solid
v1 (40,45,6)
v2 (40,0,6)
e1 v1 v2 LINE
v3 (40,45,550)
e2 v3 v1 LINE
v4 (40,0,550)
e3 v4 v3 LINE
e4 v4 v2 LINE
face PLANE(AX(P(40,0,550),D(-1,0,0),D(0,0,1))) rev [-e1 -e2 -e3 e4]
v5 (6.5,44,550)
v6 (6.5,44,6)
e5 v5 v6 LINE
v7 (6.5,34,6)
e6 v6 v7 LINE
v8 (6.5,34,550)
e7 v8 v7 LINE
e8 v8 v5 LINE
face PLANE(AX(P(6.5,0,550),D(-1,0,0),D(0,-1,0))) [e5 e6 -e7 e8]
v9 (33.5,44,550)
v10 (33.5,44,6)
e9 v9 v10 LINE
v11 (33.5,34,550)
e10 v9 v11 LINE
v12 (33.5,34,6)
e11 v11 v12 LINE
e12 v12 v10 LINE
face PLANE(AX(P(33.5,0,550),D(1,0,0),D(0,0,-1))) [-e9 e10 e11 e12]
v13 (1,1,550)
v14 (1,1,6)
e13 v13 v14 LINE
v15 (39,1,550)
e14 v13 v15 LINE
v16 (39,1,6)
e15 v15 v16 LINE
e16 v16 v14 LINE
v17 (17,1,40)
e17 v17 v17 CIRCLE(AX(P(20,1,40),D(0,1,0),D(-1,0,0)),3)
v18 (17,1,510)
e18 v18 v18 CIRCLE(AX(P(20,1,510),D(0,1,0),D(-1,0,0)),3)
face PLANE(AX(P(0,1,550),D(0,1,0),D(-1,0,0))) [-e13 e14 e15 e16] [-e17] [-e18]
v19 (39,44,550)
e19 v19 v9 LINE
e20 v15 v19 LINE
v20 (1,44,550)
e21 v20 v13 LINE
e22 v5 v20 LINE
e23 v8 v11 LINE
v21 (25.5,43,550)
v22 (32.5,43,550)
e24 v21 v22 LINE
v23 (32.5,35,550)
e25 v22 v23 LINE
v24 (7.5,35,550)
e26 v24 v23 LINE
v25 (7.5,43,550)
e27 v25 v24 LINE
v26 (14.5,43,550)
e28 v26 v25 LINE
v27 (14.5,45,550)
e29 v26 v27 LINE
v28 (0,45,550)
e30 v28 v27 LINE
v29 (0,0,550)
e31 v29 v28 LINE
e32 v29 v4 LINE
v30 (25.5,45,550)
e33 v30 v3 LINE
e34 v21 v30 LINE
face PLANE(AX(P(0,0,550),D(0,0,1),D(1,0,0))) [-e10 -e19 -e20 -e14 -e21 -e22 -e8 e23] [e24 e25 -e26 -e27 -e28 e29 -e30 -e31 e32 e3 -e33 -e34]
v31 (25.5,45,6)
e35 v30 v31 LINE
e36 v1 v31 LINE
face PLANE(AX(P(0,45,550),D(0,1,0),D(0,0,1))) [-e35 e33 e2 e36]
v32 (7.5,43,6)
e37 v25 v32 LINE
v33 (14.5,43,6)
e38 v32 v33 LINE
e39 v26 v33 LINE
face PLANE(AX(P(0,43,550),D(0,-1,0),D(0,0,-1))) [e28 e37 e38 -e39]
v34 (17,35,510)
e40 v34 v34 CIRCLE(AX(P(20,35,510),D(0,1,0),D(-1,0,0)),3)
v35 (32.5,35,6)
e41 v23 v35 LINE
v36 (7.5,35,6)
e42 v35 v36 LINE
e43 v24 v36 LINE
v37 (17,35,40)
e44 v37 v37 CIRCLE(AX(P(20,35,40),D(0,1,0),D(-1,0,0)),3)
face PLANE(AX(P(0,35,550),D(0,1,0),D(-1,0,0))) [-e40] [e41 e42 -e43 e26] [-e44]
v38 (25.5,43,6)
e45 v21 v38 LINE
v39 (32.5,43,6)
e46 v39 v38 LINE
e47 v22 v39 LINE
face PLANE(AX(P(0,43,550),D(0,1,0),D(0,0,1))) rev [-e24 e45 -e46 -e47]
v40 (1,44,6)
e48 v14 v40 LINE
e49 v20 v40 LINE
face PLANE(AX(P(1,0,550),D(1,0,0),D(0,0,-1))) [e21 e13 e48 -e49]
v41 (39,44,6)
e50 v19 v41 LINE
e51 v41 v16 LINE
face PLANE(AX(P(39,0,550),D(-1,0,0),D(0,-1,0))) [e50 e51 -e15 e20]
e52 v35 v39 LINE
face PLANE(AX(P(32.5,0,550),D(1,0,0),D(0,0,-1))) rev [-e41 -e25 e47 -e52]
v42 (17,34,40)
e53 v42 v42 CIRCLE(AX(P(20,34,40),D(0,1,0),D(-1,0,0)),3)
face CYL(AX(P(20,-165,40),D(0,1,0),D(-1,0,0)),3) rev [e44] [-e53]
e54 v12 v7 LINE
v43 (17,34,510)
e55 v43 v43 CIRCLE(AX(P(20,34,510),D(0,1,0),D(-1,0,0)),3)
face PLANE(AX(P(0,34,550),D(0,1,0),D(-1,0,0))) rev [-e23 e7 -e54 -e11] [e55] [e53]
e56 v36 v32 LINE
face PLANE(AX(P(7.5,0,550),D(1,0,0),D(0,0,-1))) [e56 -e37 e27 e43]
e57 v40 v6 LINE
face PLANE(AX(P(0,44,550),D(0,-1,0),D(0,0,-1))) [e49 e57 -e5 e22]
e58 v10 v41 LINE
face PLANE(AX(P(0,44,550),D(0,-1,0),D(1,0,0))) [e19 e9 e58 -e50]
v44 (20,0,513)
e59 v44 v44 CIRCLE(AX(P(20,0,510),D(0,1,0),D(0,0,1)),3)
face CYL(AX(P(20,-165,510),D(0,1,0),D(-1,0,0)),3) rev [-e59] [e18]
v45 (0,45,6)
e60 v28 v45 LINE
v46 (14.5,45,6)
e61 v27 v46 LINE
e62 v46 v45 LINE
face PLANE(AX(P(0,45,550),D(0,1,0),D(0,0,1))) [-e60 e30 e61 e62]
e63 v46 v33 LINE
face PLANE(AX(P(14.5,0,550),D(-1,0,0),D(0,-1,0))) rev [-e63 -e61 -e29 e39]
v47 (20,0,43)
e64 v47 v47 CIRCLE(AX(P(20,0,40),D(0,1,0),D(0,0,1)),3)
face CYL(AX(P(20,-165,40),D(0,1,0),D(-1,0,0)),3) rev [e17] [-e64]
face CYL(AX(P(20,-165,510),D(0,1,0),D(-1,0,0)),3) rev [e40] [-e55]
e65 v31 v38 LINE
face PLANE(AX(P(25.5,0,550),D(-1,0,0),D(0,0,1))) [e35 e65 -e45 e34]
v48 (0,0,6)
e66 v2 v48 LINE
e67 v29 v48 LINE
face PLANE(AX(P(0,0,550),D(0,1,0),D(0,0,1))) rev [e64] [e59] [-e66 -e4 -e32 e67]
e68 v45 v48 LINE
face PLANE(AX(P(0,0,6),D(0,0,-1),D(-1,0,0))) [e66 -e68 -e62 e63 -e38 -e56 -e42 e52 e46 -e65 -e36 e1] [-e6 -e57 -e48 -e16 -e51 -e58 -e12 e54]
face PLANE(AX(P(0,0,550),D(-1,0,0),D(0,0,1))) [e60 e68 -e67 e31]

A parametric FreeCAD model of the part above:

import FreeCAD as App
import Part
import Sketcher
from FreeCAD import Vector
Q = App.Units.Quantity


def add_polygon(sketch, points):
    """Adds a closed chain of lines whose ends are joined by coincident constraints."""
    first, n = sketch.GeometryCount, len(points)
    for a, b in zip(points, points[1:] + points[:1]):
        sketch.addGeometry(Part.LineSegment(App.Vector(*a, 0), App.Vector(*b, 0)), False)
    for i in range(n):
        sketch.addConstraint(Sketcher.Constraint("Coincident", first + i, 2, first + (i + 1) % n, 1))

doc = App.newDocument("Part")
params = doc.addObject("Spreadsheet::Sheet", "Params")
for row, (alias, value) in enumerate([
    ("sketch1_width", "7 mm"),
    ("sketch1_width2", "25 mm"),
    ("sketch1_width3", "40 mm"),
    ("sketch1_width4", "38 mm"),
    ("sketch1_width5", "27 mm"),
    ("pad1_length", "550 mm"),
    ("sketch2_diameter", "6 mm"),
    ("pocket1_length", "200 mm"),
    ("pocket2_length", "6 mm"),
], start=1):
    params.set(f"A{row}", alias)
    params.set(f"B{row}", "=" + value)
    params.setAlias(f"B{row}", alias)

body = doc.addObject("PartDesign::Body", "Body")

sketch1 = body.newObject("Sketcher::SketchObject", "Sketch")
sketch1.AttachmentSupport = (doc.getObject("XY_Plane"), [""])
sketch1.MapMode = "FlatFace"
add_polygon(sketch1, [(25.5, 45), (25.5, 43), (32.5, 43), (32.5, 35), (7.5, 35), (7.5, 43), (14.5, 43), (14.5, 45), (0, 45), (0, 0), (40, 0), (40, 45)])
add_polygon(sketch1, [(33.5, 44), (39, 44), (39, 1), (1, 1), (1, 44), (6.5, 44), (6.5, 34), (33.5, 34)])
sketch1.addConstraint(Sketcher.Constraint("Vertical", 0))
sketch1.addConstraint(Sketcher.Constraint("Horizontal", 1))
sketch1.addConstraint(Sketcher.Constraint("Vertical", 2))
sketch1.addConstraint(Sketcher.Constraint("Horizontal", 3))
sketch1.addConstraint(Sketcher.Constraint("Vertical", 4))
sketch1.addConstraint(Sketcher.Constraint("Horizontal", 5))
sketch1.addConstraint(Sketcher.Constraint("Vertical", 6))
sketch1.addConstraint(Sketcher.Constraint("Horizontal", 7))
sketch1.addConstraint(Sketcher.Constraint("Vertical", 8))
sketch1.addConstraint(Sketcher.Constraint("Horizontal", 9))
sketch1.addConstraint(Sketcher.Constraint("Vertical", 10))
sketch1.addConstraint(Sketcher.Constraint("Horizontal", 11))
sketch1.addConstraint(Sketcher.Constraint("Horizontal", 12))
sketch1.addConstraint(Sketcher.Constraint("Vertical", 13))
sketch1.addConstraint(Sketcher.Constraint("Horizontal", 14))
sketch1.addConstraint(Sketcher.Constraint("Vertical", 15))
sketch1.addConstraint(Sketcher.Constraint("Horizontal", 16))
sketch1.addConstraint(Sketcher.Constraint("Vertical", 17))
sketch1.addConstraint(Sketcher.Constraint("Horizontal", 18))
sketch1.addConstraint(Sketcher.Constraint("Vertical", 19))
sketch1.addConstraint(Sketcher.Constraint("Coincident", 8, 2, -1, 1))
sketch1.addConstraint(Sketcher.Constraint("Horizontal", 1, 2, 4, 2))
sketch1.addConstraint(Sketcher.Constraint("Horizontal", 7, 2, 10, 2))
sketch1.addConstraint(Sketcher.Constraint("Horizontal", 12, 2, 15, 2))
sketch1.addConstraint(Sketcher.Constraint("Equal", 1, 5))
sketch1.addConstraint(Sketcher.Constraint("Equal", 7, 11))
sketch1.addConstraint(Sketcher.Constraint("Equal", 12, 16))
sketch1.addConstraint(Sketcher.Constraint("DistanceX", 1, 1, 1, 2, Q("7 mm")))
sketch1.addConstraint(Sketcher.Constraint("DistanceX", 3, 2, 3, 1, Q("25 mm")))
sketch1.addConstraint(Sketcher.Constraint("DistanceX", 9, 1, 9, 2, Q("40 mm")))
sketch1.addConstraint(Sketcher.Constraint("DistanceX", 14, 2, 14, 1, Q("38 mm")))
sketch1.addConstraint(Sketcher.Constraint("DistanceX", 18, 1, 18, 2, Q("27 mm")))
sketch1.addConstraint(Sketcher.Constraint("DistanceY", 0, 2, 0, 1, Q("2 mm")))
sketch1.addConstraint(Sketcher.Constraint("DistanceY", 2, 2, 2, 1, Q("8 mm")))
sketch1.addConstraint(Sketcher.Constraint("DistanceY", 8, 2, 8, 1, Q("45 mm")))
sketch1.addConstraint(Sketcher.Constraint("DistanceY", 13, 2, 13, 1, Q("43 mm")))
sketch1.addConstraint(Sketcher.Constraint("DistanceY", 17, 2, 17, 1, Q("10 mm")))
sketch1.addConstraint(Sketcher.Constraint("DistanceX", -1, 1, 12, 2, Q("39 mm")))
sketch1.addConstraint(Sketcher.Constraint("DistanceY", -1, 1, 12, 2, Q("44 mm")))
sketch1.setExpression("Constraints[47]", "Params.sketch1_width")
sketch1.setExpression("Constraints[48]", "Params.sketch1_width2")
sketch1.setExpression("Constraints[49]", "Params.sketch1_width3")
sketch1.setExpression("Constraints[50]", "Params.sketch1_width4")
sketch1.setExpression("Constraints[51]", "Params.sketch1_width5")
pad1 = body.newObject("PartDesign::Pad", "Pad")
pad1.Profile = sketch1
pad1.setExpression("Length", "Params.pad1_length")

sketch2 = body.newObject("Sketcher::SketchObject", "Sketch001")
sketch2.AttachmentSupport = (doc.getObject("XZ_Plane"), [""])
sketch2.MapMode = "FlatFace"
sketch2.AttachmentOffset = App.Placement(Vector(0, 0, -35), App.Rotation())
sketch2.addGeometry(Part.Circle(Vector(20, 40, 0), Vector(0, 0, 1), 3), False)
sketch2.addGeometry(Part.Circle(Vector(20, 510, 0), Vector(0, 0, 1), 3), False)
sketch2.addConstraint(Sketcher.Constraint("Equal", 0, 1))
sketch2.addConstraint(Sketcher.Constraint("Vertical", 0, 3, 1, 3))
sketch2.addConstraint(Sketcher.Constraint("Diameter", 0, Q("6 mm")))
sketch2.addConstraint(Sketcher.Constraint("DistanceX", -1, 1, 0, 3, Q("20 mm")))
sketch2.addConstraint(Sketcher.Constraint("DistanceY", -1, 1, 0, 3, Q("40 mm")))
sketch2.addConstraint(Sketcher.Constraint("DistanceY", -1, 1, 1, 3, Q("510 mm")))
sketch2.setExpression("Constraints[2]", "Params.sketch2_diameter")
pocket1 = body.newObject("PartDesign::Pocket", "Pocket")
pocket1.Profile = sketch2
pocket1.setExpression("Length", "Params.pocket1_length")
pocket1.Reversed = True

sketch3 = body.newObject("Sketcher::SketchObject", "Sketch002")
sketch3.AttachmentSupport = (doc.getObject("XY_Plane"), [""])
sketch3.MapMode = "FlatFace"
add_polygon(sketch3, [(43, 47), (43, -8), (-5, -8), (-5, 47)])
sketch3.addConstraint(Sketcher.Constraint("Vertical", 0))
sketch3.addConstraint(Sketcher.Constraint("Horizontal", 1))
sketch3.addConstraint(Sketcher.Constraint("Vertical", 2))
sketch3.addConstraint(Sketcher.Constraint("Horizontal", 3))
sketch3.addConstraint(Sketcher.Constraint("DistanceX", 1, 2, 1, 1, Q("47.285739 mm")))
sketch3.addConstraint(Sketcher.Constraint("DistanceY", 0, 2, 0, 1, Q("54.700143 mm")))
sketch3.addConstraint(Sketcher.Constraint("DistanceX", -1, 1, 0, 2, Q("42.613588 mm")))
sketch3.addConstraint(Sketcher.Constraint("DistanceY", 0, 2, -1, 1, Q("7.928286 mm")))
pocket2 = body.newObject("PartDesign::Pocket", "Pocket001")
pocket2.Profile = sketch3
pocket2.setExpression("Length", "Params.pocket2_length")
pocket2.Reversed = True

doc.recompute()
